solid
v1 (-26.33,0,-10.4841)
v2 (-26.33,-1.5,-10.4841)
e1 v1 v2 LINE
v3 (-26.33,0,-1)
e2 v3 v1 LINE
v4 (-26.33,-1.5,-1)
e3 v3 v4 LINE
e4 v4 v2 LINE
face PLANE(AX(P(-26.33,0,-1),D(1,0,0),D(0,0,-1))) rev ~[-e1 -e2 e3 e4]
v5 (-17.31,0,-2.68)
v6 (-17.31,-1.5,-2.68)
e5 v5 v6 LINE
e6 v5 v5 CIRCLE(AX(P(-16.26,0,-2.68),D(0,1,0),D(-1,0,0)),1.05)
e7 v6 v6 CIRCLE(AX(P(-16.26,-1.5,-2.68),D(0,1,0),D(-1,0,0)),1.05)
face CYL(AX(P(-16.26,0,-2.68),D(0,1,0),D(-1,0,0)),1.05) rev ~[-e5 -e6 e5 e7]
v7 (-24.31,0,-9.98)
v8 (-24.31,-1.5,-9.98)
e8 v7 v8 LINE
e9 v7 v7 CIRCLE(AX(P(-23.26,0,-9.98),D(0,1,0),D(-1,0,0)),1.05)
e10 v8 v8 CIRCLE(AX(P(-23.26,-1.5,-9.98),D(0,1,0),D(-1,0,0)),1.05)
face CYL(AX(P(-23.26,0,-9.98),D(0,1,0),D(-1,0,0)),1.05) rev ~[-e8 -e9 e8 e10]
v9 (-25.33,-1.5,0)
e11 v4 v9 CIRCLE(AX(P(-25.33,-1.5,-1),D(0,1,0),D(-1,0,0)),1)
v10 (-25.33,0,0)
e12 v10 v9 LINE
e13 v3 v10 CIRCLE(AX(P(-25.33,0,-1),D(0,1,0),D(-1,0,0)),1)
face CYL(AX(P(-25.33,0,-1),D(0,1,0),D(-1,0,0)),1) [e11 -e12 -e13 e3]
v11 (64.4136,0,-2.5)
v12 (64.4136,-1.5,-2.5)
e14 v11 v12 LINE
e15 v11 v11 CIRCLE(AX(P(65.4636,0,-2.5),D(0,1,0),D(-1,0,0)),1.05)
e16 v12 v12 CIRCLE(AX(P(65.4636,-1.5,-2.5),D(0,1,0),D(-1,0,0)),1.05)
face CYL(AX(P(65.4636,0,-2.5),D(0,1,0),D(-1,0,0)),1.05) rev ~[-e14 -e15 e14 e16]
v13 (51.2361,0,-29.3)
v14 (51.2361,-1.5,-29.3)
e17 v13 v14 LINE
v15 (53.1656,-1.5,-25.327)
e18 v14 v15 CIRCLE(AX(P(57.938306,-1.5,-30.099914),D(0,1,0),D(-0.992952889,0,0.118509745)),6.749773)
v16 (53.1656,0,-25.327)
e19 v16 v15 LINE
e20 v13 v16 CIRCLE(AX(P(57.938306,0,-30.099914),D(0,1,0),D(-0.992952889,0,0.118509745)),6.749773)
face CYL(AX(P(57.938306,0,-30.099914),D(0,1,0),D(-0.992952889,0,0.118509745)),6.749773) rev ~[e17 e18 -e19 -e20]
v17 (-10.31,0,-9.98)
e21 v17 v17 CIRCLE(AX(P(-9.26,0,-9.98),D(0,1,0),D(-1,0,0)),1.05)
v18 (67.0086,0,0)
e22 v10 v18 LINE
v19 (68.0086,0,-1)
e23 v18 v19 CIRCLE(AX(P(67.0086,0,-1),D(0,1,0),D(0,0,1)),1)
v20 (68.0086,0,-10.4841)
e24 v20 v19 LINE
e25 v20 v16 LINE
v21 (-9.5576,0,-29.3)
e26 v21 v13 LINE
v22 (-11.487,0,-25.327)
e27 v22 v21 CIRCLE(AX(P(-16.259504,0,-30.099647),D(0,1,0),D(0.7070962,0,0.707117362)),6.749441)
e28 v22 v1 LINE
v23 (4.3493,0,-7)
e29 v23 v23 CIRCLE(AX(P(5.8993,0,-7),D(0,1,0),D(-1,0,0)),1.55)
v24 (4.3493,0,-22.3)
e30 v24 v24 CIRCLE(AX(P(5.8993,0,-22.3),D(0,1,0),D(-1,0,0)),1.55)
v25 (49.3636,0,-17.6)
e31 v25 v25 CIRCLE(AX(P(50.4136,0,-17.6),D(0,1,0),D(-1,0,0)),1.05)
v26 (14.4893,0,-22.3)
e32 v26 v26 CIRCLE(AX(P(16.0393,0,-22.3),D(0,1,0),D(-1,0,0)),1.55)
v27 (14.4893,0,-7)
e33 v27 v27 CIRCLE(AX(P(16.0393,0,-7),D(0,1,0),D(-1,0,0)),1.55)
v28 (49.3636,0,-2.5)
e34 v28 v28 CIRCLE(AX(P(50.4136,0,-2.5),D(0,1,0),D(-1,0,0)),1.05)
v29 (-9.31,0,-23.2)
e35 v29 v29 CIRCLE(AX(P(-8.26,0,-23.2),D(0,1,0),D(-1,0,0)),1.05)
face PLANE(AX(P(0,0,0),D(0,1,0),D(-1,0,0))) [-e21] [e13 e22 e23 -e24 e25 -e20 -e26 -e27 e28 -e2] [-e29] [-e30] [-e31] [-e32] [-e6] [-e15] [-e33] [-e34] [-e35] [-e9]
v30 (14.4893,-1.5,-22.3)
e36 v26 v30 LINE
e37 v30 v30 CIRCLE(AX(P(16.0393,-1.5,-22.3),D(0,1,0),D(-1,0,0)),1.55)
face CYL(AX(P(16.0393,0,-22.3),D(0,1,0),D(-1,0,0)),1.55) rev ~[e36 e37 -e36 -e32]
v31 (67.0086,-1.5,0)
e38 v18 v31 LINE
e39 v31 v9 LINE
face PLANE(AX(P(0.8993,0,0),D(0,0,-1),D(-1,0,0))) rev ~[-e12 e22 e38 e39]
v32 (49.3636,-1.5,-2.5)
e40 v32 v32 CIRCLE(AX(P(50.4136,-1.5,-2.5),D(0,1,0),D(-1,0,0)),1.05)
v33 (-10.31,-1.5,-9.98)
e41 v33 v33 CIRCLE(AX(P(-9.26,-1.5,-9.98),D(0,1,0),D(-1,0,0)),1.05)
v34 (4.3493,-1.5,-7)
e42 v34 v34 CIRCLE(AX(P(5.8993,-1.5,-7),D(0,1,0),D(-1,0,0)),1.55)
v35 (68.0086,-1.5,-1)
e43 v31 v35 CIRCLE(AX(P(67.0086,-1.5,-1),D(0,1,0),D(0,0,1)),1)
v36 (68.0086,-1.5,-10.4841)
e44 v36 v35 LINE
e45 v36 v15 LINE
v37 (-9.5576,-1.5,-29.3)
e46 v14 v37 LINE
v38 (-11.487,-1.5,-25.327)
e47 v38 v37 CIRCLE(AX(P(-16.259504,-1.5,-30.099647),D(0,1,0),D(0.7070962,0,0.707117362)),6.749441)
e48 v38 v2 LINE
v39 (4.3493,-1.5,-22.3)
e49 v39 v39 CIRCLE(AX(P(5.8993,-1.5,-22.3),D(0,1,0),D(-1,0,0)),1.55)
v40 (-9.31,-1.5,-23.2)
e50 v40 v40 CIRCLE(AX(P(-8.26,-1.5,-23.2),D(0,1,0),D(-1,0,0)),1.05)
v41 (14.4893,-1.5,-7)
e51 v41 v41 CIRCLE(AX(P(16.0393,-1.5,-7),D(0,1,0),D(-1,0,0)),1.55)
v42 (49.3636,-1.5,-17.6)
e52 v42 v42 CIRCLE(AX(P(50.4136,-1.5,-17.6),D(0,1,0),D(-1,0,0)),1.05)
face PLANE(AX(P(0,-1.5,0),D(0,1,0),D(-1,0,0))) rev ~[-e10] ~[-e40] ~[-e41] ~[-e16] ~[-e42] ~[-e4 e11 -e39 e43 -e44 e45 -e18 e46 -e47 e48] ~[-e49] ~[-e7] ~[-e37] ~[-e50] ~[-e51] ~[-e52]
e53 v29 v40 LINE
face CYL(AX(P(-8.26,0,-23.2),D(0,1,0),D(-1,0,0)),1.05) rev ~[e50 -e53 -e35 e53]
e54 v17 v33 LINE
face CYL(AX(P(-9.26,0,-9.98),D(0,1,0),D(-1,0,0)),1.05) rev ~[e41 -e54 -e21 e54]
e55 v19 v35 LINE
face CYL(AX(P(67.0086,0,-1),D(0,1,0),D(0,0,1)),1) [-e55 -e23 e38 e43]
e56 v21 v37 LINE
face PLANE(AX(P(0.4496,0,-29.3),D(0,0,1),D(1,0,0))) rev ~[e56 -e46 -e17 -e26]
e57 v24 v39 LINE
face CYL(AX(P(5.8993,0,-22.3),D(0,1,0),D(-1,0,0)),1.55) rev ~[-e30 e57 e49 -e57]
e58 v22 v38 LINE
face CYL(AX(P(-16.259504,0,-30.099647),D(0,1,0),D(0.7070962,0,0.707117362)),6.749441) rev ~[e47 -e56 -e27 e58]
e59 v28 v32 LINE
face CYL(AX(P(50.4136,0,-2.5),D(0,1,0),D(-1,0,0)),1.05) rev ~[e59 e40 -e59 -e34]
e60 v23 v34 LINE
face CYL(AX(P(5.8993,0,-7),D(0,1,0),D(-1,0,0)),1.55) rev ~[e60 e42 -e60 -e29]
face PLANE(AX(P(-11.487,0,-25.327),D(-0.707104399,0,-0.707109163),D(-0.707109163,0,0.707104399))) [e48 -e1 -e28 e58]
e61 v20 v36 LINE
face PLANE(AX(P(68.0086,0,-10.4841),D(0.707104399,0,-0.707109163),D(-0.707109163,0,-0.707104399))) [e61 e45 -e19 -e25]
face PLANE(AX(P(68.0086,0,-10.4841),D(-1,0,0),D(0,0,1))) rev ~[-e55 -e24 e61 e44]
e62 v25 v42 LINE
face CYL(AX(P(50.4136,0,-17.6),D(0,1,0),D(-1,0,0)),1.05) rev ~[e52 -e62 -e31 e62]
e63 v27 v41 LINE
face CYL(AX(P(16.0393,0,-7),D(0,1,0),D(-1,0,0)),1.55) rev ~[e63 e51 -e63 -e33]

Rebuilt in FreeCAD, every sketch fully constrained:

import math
import FreeCAD as App
import Part
import Sketcher
from FreeCAD import Vector

doc = App.newDocument("Part")
body = doc.addObject("PartDesign::Body", "Body")

sketch1 = doc.addObject("Sketcher::SketchObject", "Sketch")
body.addObject(sketch1)
sketch1.AttachmentSupport = (doc.XZ_Plane, [""])
sketch1.MapMode = "FlatFace"
sketch1.addGeometry([
    Part.ArcOfCircle(Part.Circle(Vector(-16.3, -30.1, 0), Vector(0, 0, 1), 6.8), math.radians(7), math.radians(45)),
    Part.LineSegment(Vector(-11.5, -25.3, 0), Vector(-26.3, -10.5, 0)),
    Part.LineSegment(Vector(-26.3, -10.5, 0), Vector(-26.3, -1, 0)),
    Part.ArcOfCircle(Part.Circle(Vector(-25.3, -1, 0), Vector(0, 0, 1), 1), math.radians(90), math.radians(180)),
    Part.LineSegment(Vector(-25.3, 0, 0), Vector(67, 0, 0)),
    Part.ArcOfCircle(Part.Circle(Vector(67, -1, 0), Vector(0, 0, 1), 1), math.radians(0), math.radians(90)),
    Part.LineSegment(Vector(68, -1, 0), Vector(68, -10.5, 0)),
    Part.LineSegment(Vector(68, -10.5, 0), Vector(53.2, -25.3, 0)),
    Part.ArcOfCircle(Part.Circle(Vector(57.9, -30.1, 0), Vector(0, 0, 1), 6.8), math.radians(135), math.radians(173)),
    Part.LineSegment(Vector(51.2, -29.3, 0), Vector(-9.6, -29.3, 0)),
    Part.Circle(Vector(5.9, -7, 0), Vector(0, 0, 1), 1.6),
    Part.Circle(Vector(16, -22.3, 0), Vector(0, 0, 1), 1.6),
    Part.Circle(Vector(5.9, -22.3, 0), Vector(0, 0, 1), 1.6),
    Part.Circle(Vector(16, -7, 0), Vector(0, 0, 1), 1.6),
    Part.Circle(Vector(-16.3, -2.7, 0), Vector(0, 0, 1), 1.1),
    Part.Circle(Vector(-8.3, -23.2, 0), Vector(0, 0, 1), 1.1),
    Part.Circle(Vector(-9.3, -10, 0), Vector(0, 0, 1), 1.1),
    Part.Circle(Vector(-23.3, -10, 0), Vector(0, 0, 1), 1.1),
    Part.Circle(Vector(50.4, -2.5, 0), Vector(0, 0, 1), 1.1),
    Part.Circle(Vector(50.4, -17.6, 0), Vector(0, 0, 1), 1.1),
    Part.Circle(Vector(65.5, -2.5, 0), Vector(0, 0, 1), 1.1),
], False)
sketch1.addConstraint([
    Sketcher.Constraint("Tangent", 0, 2, 1, 1),
    Sketcher.Constraint("Coincident", 1, 2, 2, 1),
    Sketcher.Constraint("Tangent", 2, 2, 3, 2),
    Sketcher.Constraint("Tangent", 3, 1, 4, 1),
    Sketcher.Constraint("Tangent", 4, 2, 5, 2),
    Sketcher.Constraint("Tangent", 5, 1, 6, 1),
    Sketcher.Constraint("Coincident", 6, 2, 7, 1),
    Sketcher.Constraint("Tangent", 7, 2, 8, 1),
    Sketcher.Constraint("Coincident", 8, 2, 9, 1),
    Sketcher.Constraint("Coincident", 9, 2, 0, 1),
    Sketcher.Constraint("Vertical", 2),
    Sketcher.Constraint("Horizontal", 4),
    Sketcher.Constraint("Vertical", 6),
    Sketcher.Constraint("Horizontal", 9),
    Sketcher.Constraint("Equal", 3, 5),
    Sketcher.Constraint("Equal", 0, 8),
    Sketcher.Constraint("Equal", 10, 11),
    Sketcher.Constraint("Equal", 11, 12),
    Sketcher.Constraint("Equal", 12, 13),
    Sketcher.Constraint("Equal", 14, 15),
    Sketcher.Constraint("Equal", 15, 16),
    Sketcher.Constraint("Equal", 16, 17),
    Sketcher.Constraint("Equal", 17, 18),
    Sketcher.Constraint("Equal", 18, 19),
    Sketcher.Constraint("Equal", 19, 20),
    Sketcher.Constraint("PointOnObject", 3, 1, -1),
    Sketcher.Constraint("Perpendicular", 1, 7),
    Sketcher.Constraint("Horizontal", 0, 3, 8, 3),
    Sketcher.Constraint("Horizontal", 11, 3, 12, 3),
    Sketcher.Constraint("Horizontal", 10, 3, 13, 3),
    Sketcher.Constraint("Horizontal", 16, 3, 17, 3),
    Sketcher.Constraint("Horizontal", 18, 3, 20, 3),
    Sketcher.Constraint("Horizontal", 1, 2, 6, 2),
    Sketcher.Constraint("Horizontal", 0, 2, 7, 2),
    Sketcher.Constraint("Vertical", 10, 3, 12, 3),
    Sketcher.Constraint("Vertical", 11, 3, 13, 3),
    Sketcher.Constraint("Vertical", 0, 3, 14, 3),
    Sketcher.Constraint("Vertical", 18, 3, 19, 3),
    Sketcher.Constraint("Radius", 3, 1.0),
    Sketcher.Constraint("Diameter", 10, 3.1),
    Sketcher.Constraint("Diameter", 14, 2.1),
    Sketcher.Constraint("Radius", 0, 6.75),
    Sketcher.Constraint("DistanceY", 10, 3, -1, 1, 7.0),
    Sketcher.Constraint("DistanceX", 0, 3, 15, 3, 8.0),
    Sketcher.Constraint("DistanceX", 14, 3, 16, 3, 7.0),
    Sketcher.Constraint("DistanceX", 17, 3, 14, 3, 7.0),
    Sketcher.Constraint("DistanceY", 9, 2, 12, 3, 7.0),
    Sketcher.Constraint("DistanceY", 0, 3, -1, 1, 30.1),
    Sketcher.Constraint("DistanceY", 11, 3, -1, 1, 22.3),
    Sketcher.Constraint("DistanceY", 15, 3, -1, 1, 23.2),
    Sketcher.Constraint("DistanceY", 18, 3, -1, 1, 2.5),
    Sketcher.Constraint("DistanceY", 19, 3, -1, 1, 17.6),
    Sketcher.Constraint("DistanceY", 16, 3, 14, 3, 7.3),
    Sketcher.Constraint("DistanceY", 2, 1, 2, 2, 9.484),
    Sketcher.Constraint("DistanceX", 0, 3, -1, 1, 16.26),
    Sketcher.Constraint("DistanceY", 14, 3, -1, 1, 2.68),
    Sketcher.Constraint("DistanceX", 10, 3, 11, 3, 10.14),
    Sketcher.Constraint("DistanceX", 18, 3, 20, 3, 15.05),
    Sketcher.Constraint("DistanceX", 4, 1, 4, 2, 92.3386),
    Sketcher.Constraint("DistanceX", 18, 3, 5, 3, 16.595),
    Sketcher.Constraint("DistanceX", 9, 2, 12, 3, 15.457),
])
pad1 = doc.addObject("PartDesign::Pad", "Pad")
body.addObject(pad1)
pad1.Profile = sketch1
pad1.Length = 1.5

doc.recompute()
